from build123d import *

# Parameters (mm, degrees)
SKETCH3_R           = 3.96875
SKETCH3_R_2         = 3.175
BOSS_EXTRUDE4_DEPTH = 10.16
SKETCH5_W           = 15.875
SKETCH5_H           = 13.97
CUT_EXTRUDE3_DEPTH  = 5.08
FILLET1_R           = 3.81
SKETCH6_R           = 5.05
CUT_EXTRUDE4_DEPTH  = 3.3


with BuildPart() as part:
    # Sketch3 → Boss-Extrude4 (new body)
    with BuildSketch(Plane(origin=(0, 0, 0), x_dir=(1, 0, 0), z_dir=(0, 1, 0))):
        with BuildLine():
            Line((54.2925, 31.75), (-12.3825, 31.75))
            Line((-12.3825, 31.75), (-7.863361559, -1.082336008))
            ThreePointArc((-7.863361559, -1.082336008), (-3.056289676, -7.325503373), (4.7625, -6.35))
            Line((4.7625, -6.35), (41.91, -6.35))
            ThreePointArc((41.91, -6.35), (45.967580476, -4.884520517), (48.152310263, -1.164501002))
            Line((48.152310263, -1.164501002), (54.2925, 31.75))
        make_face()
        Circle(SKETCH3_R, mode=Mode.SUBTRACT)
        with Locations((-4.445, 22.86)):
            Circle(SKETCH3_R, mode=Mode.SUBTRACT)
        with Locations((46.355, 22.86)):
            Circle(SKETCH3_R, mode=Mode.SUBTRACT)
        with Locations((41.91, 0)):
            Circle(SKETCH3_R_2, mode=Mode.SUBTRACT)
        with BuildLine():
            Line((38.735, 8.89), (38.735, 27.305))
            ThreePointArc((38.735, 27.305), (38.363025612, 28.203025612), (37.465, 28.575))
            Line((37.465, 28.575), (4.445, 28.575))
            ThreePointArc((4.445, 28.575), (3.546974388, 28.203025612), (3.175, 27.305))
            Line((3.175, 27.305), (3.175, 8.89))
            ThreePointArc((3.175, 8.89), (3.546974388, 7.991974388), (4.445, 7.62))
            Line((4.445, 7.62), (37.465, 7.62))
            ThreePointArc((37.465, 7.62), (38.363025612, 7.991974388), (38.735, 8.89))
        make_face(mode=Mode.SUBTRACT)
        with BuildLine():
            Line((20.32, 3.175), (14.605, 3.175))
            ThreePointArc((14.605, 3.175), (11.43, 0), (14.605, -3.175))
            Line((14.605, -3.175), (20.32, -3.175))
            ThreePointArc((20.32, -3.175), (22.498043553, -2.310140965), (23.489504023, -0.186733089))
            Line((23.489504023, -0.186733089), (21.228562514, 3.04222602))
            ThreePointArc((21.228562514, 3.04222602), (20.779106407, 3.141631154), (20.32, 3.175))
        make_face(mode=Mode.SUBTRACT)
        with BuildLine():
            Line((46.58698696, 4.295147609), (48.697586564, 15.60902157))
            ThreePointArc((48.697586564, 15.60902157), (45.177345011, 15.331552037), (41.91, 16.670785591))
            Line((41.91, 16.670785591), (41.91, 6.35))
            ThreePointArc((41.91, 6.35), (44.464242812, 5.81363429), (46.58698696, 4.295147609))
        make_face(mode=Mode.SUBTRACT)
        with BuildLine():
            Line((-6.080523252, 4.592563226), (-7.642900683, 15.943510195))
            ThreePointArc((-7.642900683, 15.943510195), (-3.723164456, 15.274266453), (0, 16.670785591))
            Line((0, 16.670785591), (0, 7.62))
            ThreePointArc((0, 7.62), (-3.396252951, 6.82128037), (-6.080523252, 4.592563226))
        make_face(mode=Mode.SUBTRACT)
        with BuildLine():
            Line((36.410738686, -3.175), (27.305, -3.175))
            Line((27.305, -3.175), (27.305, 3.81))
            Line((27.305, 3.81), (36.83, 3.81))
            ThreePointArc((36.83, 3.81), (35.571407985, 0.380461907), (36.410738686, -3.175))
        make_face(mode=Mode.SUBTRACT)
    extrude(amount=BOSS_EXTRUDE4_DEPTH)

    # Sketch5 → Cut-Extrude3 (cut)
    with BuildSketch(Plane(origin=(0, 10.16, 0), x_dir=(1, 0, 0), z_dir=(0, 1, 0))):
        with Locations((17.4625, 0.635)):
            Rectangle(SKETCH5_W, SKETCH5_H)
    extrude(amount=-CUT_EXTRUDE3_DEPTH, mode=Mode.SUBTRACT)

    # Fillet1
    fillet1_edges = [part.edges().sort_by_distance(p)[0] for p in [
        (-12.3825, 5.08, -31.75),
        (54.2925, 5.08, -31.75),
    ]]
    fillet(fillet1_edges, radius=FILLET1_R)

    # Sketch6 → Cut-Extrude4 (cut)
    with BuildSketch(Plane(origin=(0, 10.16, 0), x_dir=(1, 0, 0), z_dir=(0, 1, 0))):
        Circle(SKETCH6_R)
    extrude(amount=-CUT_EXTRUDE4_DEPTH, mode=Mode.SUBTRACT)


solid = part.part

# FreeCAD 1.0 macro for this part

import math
import FreeCAD as App
import Part
import Sketcher
Q = App.Units.Quantity


def edges_at(feature, points):
    """Names of the edges that pass closest to the given points."""
    edges = feature.Shape.Edges
    near = lambda p: min(range(len(edges)), key=lambda i: edges[i].distToShape(Part.Vertex(*p))[0])
    return sorted({f"Edge{near(p) + 1}" for p in points})

doc = App.newDocument("Part")
body = doc.addObject("PartDesign::Body", "Body")

# Sketch on XZ plane
sketch1 = body.newObject("Sketcher::SketchObject", "Sketch")
sketch1.AttachmentSupport = (doc.getObject("XZ_Plane"), [""])
sketch1.MapMode = "FlatFace"
sketch1.addGeometry(Part.LineSegment(App.Vector(54.3, -31.8, 0), App.Vector(-12.4, -31.8, 0)), False)
sketch1.addGeometry(Part.LineSegment(App.Vector(-12.4, -31.8, 0), App.Vector(-7.9, 1.1, 0)), False)
sketch1.addGeometry(Part.ArcOfCircle(Part.Circle(App.Vector(0, 0, 0), App.Vector(0, 0, 1), 7.9), math.radians(53), math.radians(172)), False)
sketch1.addGeometry(Part.LineSegment(App.Vector(4.8, 6.3, 0), App.Vector(41.9, 6.3, 0)), False)
sketch1.addGeometry(Part.ArcOfCircle(Part.Circle(App.Vector(41.9, 0, 0), App.Vector(0, 0, 1), 6.3), math.radians(11), math.radians(90)), False)
sketch1.addGeometry(Part.LineSegment(App.Vector(48.2, 1.2, 0), App.Vector(54.3, -31.8, 0)), False)
sketch1.addGeometry(Part.Circle(App.Vector(0, 0, 0), App.Vector(0, 0, 1), 4), False)
sketch1.addGeometry(Part.LineSegment(App.Vector(14.6, -3.2, 0), App.Vector(20.3, -3.2, 0)), False)
sketch1.addGeometry(Part.ArcOfCircle(Part.Circle(App.Vector(20.3, 0, 0), App.Vector(0, 0, 1), 3.2), math.radians(-90), math.radians(-73.37)), False)
sketch1.addGeometry(Part.LineSegment(App.Vector(21.2, -3, 0), App.Vector(23.5, 0.2, 0)), False)
sketch1.addGeometry(Part.ArcOfCircle(Part.Circle(App.Vector(20.3, 0, 0), App.Vector(0, 0, 1), 3.2), math.radians(3), math.radians(90)), False)
sketch1.addGeometry(Part.LineSegment(App.Vector(20.3, 3.2, 0), App.Vector(14.6, 3.2, 0)), False)
sketch1.addGeometry(Part.ArcOfCircle(Part.Circle(App.Vector(14.6, 0, 0), App.Vector(0, 0, 1), 3.2), math.radians(90), math.radians(270)), False)
sketch1.addGeometry(Part.ArcOfCircle(Part.Circle(App.Vector(0, 0, 0), App.Vector(0, 0, 1), 7.6), math.radians(-143), math.radians(-90)), False)
sketch1.addGeometry(Part.LineSegment(App.Vector(-6.1, -4.6, 0), App.Vector(-7.6, -15.9, 0)), False)
sketch1.addGeometry(Part.ArcOfCircle(Part.Circle(App.Vector(-4.4, -22.9, 0), App.Vector(0, 0, 1), 7.6), math.radians(54), math.radians(115)), False)
sketch1.addGeometry(Part.LineSegment(App.Vector(0, -16.7, 0), App.Vector(0, -7.6, 0)), False)
sketch1.addGeometry(Part.ArcOfCircle(Part.Circle(App.Vector(41.9, 0, 0), App.Vector(0, 0, 1), 6.4), math.radians(150), math.radians(217)), False)
sketch1.addGeometry(Part.LineSegment(App.Vector(36.4, 3.2, 0), App.Vector(27.3, 3.2, 0)), False)
sketch1.addGeometry(Part.LineSegment(App.Vector(27.3, 3.2, 0), App.Vector(27.3, -3.8, 0)), False)
sketch1.addGeometry(Part.LineSegment(App.Vector(27.3, -3.8, 0), App.Vector(36.8, -3.8, 0)), False)
sketch1.addGeometry(Part.Circle(App.Vector(41.9, 0, 0), App.Vector(0, 0, 1), 3.2), False)
sketch1.addGeometry(Part.LineSegment(App.Vector(48.7, -15.6, 0), App.Vector(46.6, -4.3, 0)), False)
sketch1.addGeometry(Part.ArcOfCircle(Part.Circle(App.Vector(41.9, 0, 0), App.Vector(0, 0, 1), 6.4), math.radians(-90), math.radians(-43)), False)
sketch1.addGeometry(Part.LineSegment(App.Vector(41.9, -6.3, 0), App.Vector(41.9, -16.7, 0)), False)
sketch1.addGeometry(Part.ArcOfCircle(Part.Circle(App.Vector(46.4, -22.9, 0), App.Vector(0, 0, 1), 7.6), math.radians(72), math.radians(126)), False)
sketch1.addGeometry(Part.Circle(App.Vector(-4.4, -22.9, 0), App.Vector(0, 0, 1), 4), False)
sketch1.addGeometry(Part.LineSegment(App.Vector(38.7, -27.3, 0), App.Vector(38.7, -8.9, 0)), False)
sketch1.addGeometry(Part.ArcOfCircle(Part.Circle(App.Vector(37.5, -8.9, 0), App.Vector(0, 0, 1), 1.3), math.radians(0), math.radians(90)), False)
sketch1.addGeometry(Part.LineSegment(App.Vector(37.5, -7.6, 0), App.Vector(4.4, -7.6, 0)), False)
sketch1.addGeometry(Part.ArcOfCircle(Part.Circle(App.Vector(4.4, -8.9, 0), App.Vector(0, 0, 1), 1.3), math.radians(90), math.radians(180)), False)
sketch1.addGeometry(Part.LineSegment(App.Vector(3.2, -8.9, 0), App.Vector(3.2, -27.3, 0)), False)
sketch1.addGeometry(Part.ArcOfCircle(Part.Circle(App.Vector(4.4, -27.3, 0), App.Vector(0, 0, 1), 1.3), math.radians(180), math.radians(270)), False)
sketch1.addGeometry(Part.LineSegment(App.Vector(4.4, -28.6, 0), App.Vector(37.5, -28.6, 0)), False)
sketch1.addGeometry(Part.ArcOfCircle(Part.Circle(App.Vector(37.5, -27.3, 0), App.Vector(0, 0, 1), 1.3), math.radians(-90), math.radians(0)), False)
sketch1.addGeometry(Part.Circle(App.Vector(46.4, -22.9, 0), App.Vector(0, 0, 1), 4), False)
sketch1.addConstraint(Sketcher.Constraint("Coincident", 0, 2, 1, 1))
sketch1.addConstraint(Sketcher.Constraint("Tangent", 1, 2, 2, 2))
sketch1.addConstraint(Sketcher.Constraint("Coincident", 2, 1, 3, 1))
sketch1.addConstraint(Sketcher.Constraint("Tangent", 3, 2, 4, 2))
sketch1.addConstraint(Sketcher.Constraint("Tangent", 4, 1, 5, 1))
sketch1.addConstraint(Sketcher.Constraint("Coincident", 5, 2, 0, 1))
sketch1.addConstraint(Sketcher.Constraint("Tangent", 7, 2, 8, 1))
sketch1.addConstraint(Sketcher.Constraint("Coincident", 8, 2, 9, 1))
sketch1.addConstraint(Sketcher.Constraint("Coincident", 9, 2, 10, 1))
sketch1.addConstraint(Sketcher.Constraint("Tangent", 10, 2, 11, 1))
sketch1.addConstraint(Sketcher.Constraint("Tangent", 11, 2, 12, 1))
sketch1.addConstraint(Sketcher.Constraint("Tangent", 12, 2, 7, 1))
sketch1.addConstraint(Sketcher.Constraint("Coincident", 13, 1, 14, 1))
sketch1.addConstraint(Sketcher.Constraint("Coincident", 14, 2, 15, 2))
sketch1.addConstraint(Sketcher.Constraint("Coincident", 15, 1, 16, 1))
sketch1.addConstraint(Sketcher.Constraint("Coincident", 16, 2, 13, 2))
sketch1.addConstraint(Sketcher.Constraint("Coincident", 17, 1, 18, 1))
sketch1.addConstraint(Sketcher.Constraint("Coincident", 18, 2, 19, 1))
sketch1.addConstraint(Sketcher.Constraint("Coincident", 19, 2, 20, 1))
sketch1.addConstraint(Sketcher.Constraint("Coincident", 20, 2, 17, 2))
sketch1.addConstraint(Sketcher.Constraint("Coincident", 22, 2, 23, 2))
sketch1.addConstraint(Sketcher.Constraint("Coincident", 23, 1, 24, 1))
sketch1.addConstraint(Sketcher.Constraint("Coincident", 24, 2, 25, 2))
sketch1.addConstraint(Sketcher.Constraint("Coincident", 25, 1, 22, 1))
sketch1.addConstraint(Sketcher.Constraint("Tangent", 27, 2, 28, 1))
sketch1.addConstraint(Sketcher.Constraint("Tangent", 28, 2, 29, 1))
sketch1.addConstraint(Sketcher.Constraint("Tangent", 29, 2, 30, 1))
sketch1.addConstraint(Sketcher.Constraint("Tangent", 30, 2, 31, 1))
sketch1.addConstraint(Sketcher.Constraint("Tangent", 31, 2, 32, 1))
sketch1.addConstraint(Sketcher.Constraint("Tangent", 32, 2, 33, 1))
sketch1.addConstraint(Sketcher.Constraint("Tangent", 33, 2, 34, 1))
sketch1.addConstraint(Sketcher.Constraint("Tangent", 34, 2, 27, 1))
sketch1.addConstraint(Sketcher.Constraint("Horizontal", 0))
sketch1.addConstraint(Sketcher.Constraint("Horizontal", 3))
sketch1.addConstraint(Sketcher.Constraint("Horizontal", 7))
sketch1.addConstraint(Sketcher.Constraint("Horizontal", 11))
sketch1.addConstraint(Sketcher.Constraint("Vertical", 16))
sketch1.addConstraint(Sketcher.Constraint("Horizontal", 18))
sketch1.addConstraint(Sketcher.Constraint("Vertical", 19))
sketch1.addConstraint(Sketcher.Constraint("Horizontal", 20))
sketch1.addConstraint(Sketcher.Constraint("Vertical", 24))
sketch1.addConstraint(Sketcher.Constraint("Vertical", 27))
sketch1.addConstraint(Sketcher.Constraint("Horizontal", 29))
sketch1.addConstraint(Sketcher.Constraint("Vertical", 31))
sketch1.addConstraint(Sketcher.Constraint("Horizontal", 33))
sketch1.addConstraint(Sketcher.Constraint("Coincident", 2, 3, -1, 1))
sketch1.addConstraint(Sketcher.Constraint("Coincident", 6, 3, -1, 1))
sketch1.addConstraint(Sketcher.Constraint("Coincident", 13, 3, -1, 1))
sketch1.addConstraint(Sketcher.Constraint("Coincident", 10, 3, 8, 3))
sketch1.addConstraint(Sketcher.Constraint("Coincident", 17, 3, 4, 3))
sketch1.addConstraint(Sketcher.Constraint("Coincident", 21, 3, 4, 3))
sketch1.addConstraint(Sketcher.Constraint("Coincident", 23, 3, 4, 3))
sketch1.addConstraint(Sketcher.Constraint("Coincident", 26, 3, 15, 3))
sketch1.addConstraint(Sketcher.Constraint("Coincident", 35, 3, 25, 3))
sketch1.addConstraint(Sketcher.Constraint("Equal", 8, 10))
sketch1.addConstraint(Sketcher.Constraint("Equal", 13, 15))
sketch1.addConstraint(Sketcher.Constraint("Equal", 4, 17))
sketch1.addConstraint(Sketcher.Constraint("Equal", 12, 21))
sketch1.addConstraint(Sketcher.Constraint("Equal", 17, 23))
sketch1.addConstraint(Sketcher.Constraint("Equal", 15, 25))
sketch1.addConstraint(Sketcher.Constraint("Equal", 6, 26))
sketch1.addConstraint(Sketcher.Constraint("Equal", 28, 30))
sketch1.addConstraint(Sketcher.Constraint("Equal", 30, 32))
sketch1.addConstraint(Sketcher.Constraint("Equal", 32, 34))
sketch1.addConstraint(Sketcher.Constraint("Equal", 26, 35))
sketch1.addConstraint(Sketcher.Constraint("Symmetric", 3, 2, 23, 1, -1))
sketch1.addConstraint(Sketcher.Constraint("PointOnObject", 8, 3, -1))
sketch1.addConstraint(Sketcher.Constraint("PointOnObject", 15, 1, -2))
sketch1.addConstraint(Sketcher.Constraint("Parallel", 1, 14))
sketch1.addConstraint(Sketcher.Constraint("Parallel", 5, 22))
sketch1.addConstraint(Sketcher.Constraint("Horizontal", 15, 3, 25, 3))
sketch1.addConstraint(Sketcher.Constraint("Horizontal", 11, 2, 17, 1))
sketch1.addConstraint(Sketcher.Constraint("Horizontal", 15, 1, 24, 2))
sketch1.addConstraint(Sketcher.Constraint("Horizontal", 16, 2, 28, 2))
sketch1.addConstraint(Sketcher.Constraint("Radius", 13, Q("0.3 in")))
sketch1.addConstraint(Sketcher.Constraint("Diameter", 21, Q("0.25 in")))
sketch1.addConstraint(Sketcher.Constraint("Radius", 4, Q("0.25 in")))
sketch1.addConstraint(Sketcher.Constraint("Radius", 28, Q("0.05 in")))
sketch1.addConstraint(Sketcher.Constraint("Diameter", 6, Q("0.3125 in")))
sketch1.addConstraint(Sketcher.Constraint("DistanceX", 29, 2, 29, 1, Q("1.3 in")))
sketch1.addConstraint(Sketcher.Constraint("Angle", 9, Q("55 deg")))
sketch1.addConstraint(Sketcher.Constraint("Radius", 2, Q("0.3125 in")))
sketch1.addConstraint(Sketcher.Constraint("DistanceX", -1, 1, 8, 3, Q("0.8 in")))
sketch1.addConstraint(Sketcher.Constraint("DistanceY", 15, 3, -1, 1, Q("0.9 in")))
sketch1.addConstraint(Sketcher.Constraint("DistanceX", 30, 3, 12, 3, Q("0.4 in")))
sketch1.addConstraint(Sketcher.Constraint("DistanceY", 0, 2, 30, 3, Q("0.9 in")))
sketch1.addConstraint(Sketcher.Constraint("DistanceY", 28, 3, 20, 2, Q("0.2 in")))
sketch1.addConstraint(Sketcher.Constraint("DistanceX", 15, 3, 31, 2, Q("0.3 in")))
sketch1.addConstraint(Sketcher.Constraint("DistanceX", 34, 2, 35, 3, Q("0.3 in")))
sketch1.addConstraint(Sketcher.Constraint("DistanceX", 0, 2, 0, 1, Q("2.625 in")))
sketch1.addConstraint(Sketcher.Constraint("DistanceX", 7, 1, 7, 2, Q("0.225 in")))
sketch1.addConstraint(Sketcher.Constraint("DistanceX", 20, 1, 20, 2, Q("0.375 in")))
sketch1.addConstraint(Sketcher.Constraint("DistanceY", 27, 1, 27, 2, Q("0.725 in")))
sketch1.addConstraint(Sketcher.Constraint("DistanceX", 0, 2, 15, 3, Q("0.3125 in")))
sketch1.addConstraint(Sketcher.Constraint("DistanceX", 14, 2, -1, 1, Q("7.642901 mm")))
sketch1.addConstraint(Sketcher.Constraint("DistanceX", 22, 2, 25, 1, Q("2.1106 mm")))
sketch1.addConstraint(Sketcher.Constraint("Distance", 9, Q("3.941831 mm")))
pad1 = body.newObject("PartDesign::Pad", "Pad")
pad1.Profile = sketch1
pad1.Length = Q("0.4 in")
pad1.Reversed = True

# Sketch on XZ plane
sketch2 = body.newObject("Sketcher::SketchObject", "Sketch001")
sketch2.AttachmentSupport = (doc.getObject("XZ_Plane"), [""])
sketch2.MapMode = "FlatFace"
sketch2.AttachmentOffset = App.Placement(App.Vector(0, 0, -0.4 * 25.4), App.Rotation())
sketch2.addGeometry(Part.LineSegment(App.Vector(10, -8, 0), App.Vector(10, 6, 0)), False)
sketch2.addGeometry(Part.LineSegment(App.Vector(10, 6, 0), App.Vector(25, 6, 0)), False)
sketch2.addGeometry(Part.LineSegment(App.Vector(25, 6, 0), App.Vector(25, -8, 0)), False)
sketch2.addGeometry(Part.LineSegment(App.Vector(25, -8, 0), App.Vector(10, -8, 0)), False)
sketch2.addConstraint(Sketcher.Constraint("Coincident", 0, 2, 1, 1))
sketch2.addConstraint(Sketcher.Constraint("Coincident", 1, 2, 2, 1))
sketch2.addConstraint(Sketcher.Constraint("Coincident", 2, 2, 3, 1))
sketch2.addConstraint(Sketcher.Constraint("Coincident", 3, 2, 0, 1))
sketch2.addConstraint(Sketcher.Constraint("Vertical", 0))
sketch2.addConstraint(Sketcher.Constraint("Horizontal", 1))
sketch2.addConstraint(Sketcher.Constraint("Vertical", 2))
sketch2.addConstraint(Sketcher.Constraint("Horizontal", 3))
sketch2.addConstraint(Sketcher.Constraint("DistanceX", -1, 1, 1, 2, Q("1 in")))
sketch2.addConstraint(Sketcher.Constraint("DistanceY", 0, 1, 0, 2, Q("0.55 in")))
sketch2.addConstraint(Sketcher.Constraint("DistanceY", 2, 2, -1, 1, Q("0.3 in")))
sketch2.addConstraint(Sketcher.Constraint("DistanceX", 1, 1, 1, 2, Q("0.625 in")))
pocket1 = body.newObject("PartDesign::Pocket", "Pocket")
pocket1.Profile = sketch2
pocket1.Length = Q("0.2 in")
pocket1.Reversed = True
doc.recompute()

fillet = body.newObject("PartDesign::Fillet", "Fillet")
fillet.Base = (pocket1, edges_at(pocket1, [(-12.383, 5.08, -31.75), (54.292, 5.08, -31.75)]))
fillet.Radius = Q("0.15 in")

# Sketch on XZ plane
sketch3 = body.newObject("Sketcher::SketchObject", "Sketch002")
sketch3.AttachmentSupport = (doc.getObject("XZ_Plane"), [""])
sketch3.MapMode = "FlatFace"
sketch3.AttachmentOffset = App.Placement(App.Vector(0, 0, -0.4 * 25.4), App.Rotation())
sketch3.addGeometry(Part.Circle(App.Vector(0, 0, 0), App.Vector(0, 0, 1), 5), False)
sketch3.addConstraint(Sketcher.Constraint("Coincident", 0, 3, -1, 1))
sketch3.addConstraint(Sketcher.Constraint("Diameter", 0, Q("10.1 mm")))
pocket2 = body.newObject("PartDesign::Pocket", "Pocket001")
pocket2.Profile = sketch3
pocket2.Length = 3.3
pocket2.Reversed = True

doc.recompute()
